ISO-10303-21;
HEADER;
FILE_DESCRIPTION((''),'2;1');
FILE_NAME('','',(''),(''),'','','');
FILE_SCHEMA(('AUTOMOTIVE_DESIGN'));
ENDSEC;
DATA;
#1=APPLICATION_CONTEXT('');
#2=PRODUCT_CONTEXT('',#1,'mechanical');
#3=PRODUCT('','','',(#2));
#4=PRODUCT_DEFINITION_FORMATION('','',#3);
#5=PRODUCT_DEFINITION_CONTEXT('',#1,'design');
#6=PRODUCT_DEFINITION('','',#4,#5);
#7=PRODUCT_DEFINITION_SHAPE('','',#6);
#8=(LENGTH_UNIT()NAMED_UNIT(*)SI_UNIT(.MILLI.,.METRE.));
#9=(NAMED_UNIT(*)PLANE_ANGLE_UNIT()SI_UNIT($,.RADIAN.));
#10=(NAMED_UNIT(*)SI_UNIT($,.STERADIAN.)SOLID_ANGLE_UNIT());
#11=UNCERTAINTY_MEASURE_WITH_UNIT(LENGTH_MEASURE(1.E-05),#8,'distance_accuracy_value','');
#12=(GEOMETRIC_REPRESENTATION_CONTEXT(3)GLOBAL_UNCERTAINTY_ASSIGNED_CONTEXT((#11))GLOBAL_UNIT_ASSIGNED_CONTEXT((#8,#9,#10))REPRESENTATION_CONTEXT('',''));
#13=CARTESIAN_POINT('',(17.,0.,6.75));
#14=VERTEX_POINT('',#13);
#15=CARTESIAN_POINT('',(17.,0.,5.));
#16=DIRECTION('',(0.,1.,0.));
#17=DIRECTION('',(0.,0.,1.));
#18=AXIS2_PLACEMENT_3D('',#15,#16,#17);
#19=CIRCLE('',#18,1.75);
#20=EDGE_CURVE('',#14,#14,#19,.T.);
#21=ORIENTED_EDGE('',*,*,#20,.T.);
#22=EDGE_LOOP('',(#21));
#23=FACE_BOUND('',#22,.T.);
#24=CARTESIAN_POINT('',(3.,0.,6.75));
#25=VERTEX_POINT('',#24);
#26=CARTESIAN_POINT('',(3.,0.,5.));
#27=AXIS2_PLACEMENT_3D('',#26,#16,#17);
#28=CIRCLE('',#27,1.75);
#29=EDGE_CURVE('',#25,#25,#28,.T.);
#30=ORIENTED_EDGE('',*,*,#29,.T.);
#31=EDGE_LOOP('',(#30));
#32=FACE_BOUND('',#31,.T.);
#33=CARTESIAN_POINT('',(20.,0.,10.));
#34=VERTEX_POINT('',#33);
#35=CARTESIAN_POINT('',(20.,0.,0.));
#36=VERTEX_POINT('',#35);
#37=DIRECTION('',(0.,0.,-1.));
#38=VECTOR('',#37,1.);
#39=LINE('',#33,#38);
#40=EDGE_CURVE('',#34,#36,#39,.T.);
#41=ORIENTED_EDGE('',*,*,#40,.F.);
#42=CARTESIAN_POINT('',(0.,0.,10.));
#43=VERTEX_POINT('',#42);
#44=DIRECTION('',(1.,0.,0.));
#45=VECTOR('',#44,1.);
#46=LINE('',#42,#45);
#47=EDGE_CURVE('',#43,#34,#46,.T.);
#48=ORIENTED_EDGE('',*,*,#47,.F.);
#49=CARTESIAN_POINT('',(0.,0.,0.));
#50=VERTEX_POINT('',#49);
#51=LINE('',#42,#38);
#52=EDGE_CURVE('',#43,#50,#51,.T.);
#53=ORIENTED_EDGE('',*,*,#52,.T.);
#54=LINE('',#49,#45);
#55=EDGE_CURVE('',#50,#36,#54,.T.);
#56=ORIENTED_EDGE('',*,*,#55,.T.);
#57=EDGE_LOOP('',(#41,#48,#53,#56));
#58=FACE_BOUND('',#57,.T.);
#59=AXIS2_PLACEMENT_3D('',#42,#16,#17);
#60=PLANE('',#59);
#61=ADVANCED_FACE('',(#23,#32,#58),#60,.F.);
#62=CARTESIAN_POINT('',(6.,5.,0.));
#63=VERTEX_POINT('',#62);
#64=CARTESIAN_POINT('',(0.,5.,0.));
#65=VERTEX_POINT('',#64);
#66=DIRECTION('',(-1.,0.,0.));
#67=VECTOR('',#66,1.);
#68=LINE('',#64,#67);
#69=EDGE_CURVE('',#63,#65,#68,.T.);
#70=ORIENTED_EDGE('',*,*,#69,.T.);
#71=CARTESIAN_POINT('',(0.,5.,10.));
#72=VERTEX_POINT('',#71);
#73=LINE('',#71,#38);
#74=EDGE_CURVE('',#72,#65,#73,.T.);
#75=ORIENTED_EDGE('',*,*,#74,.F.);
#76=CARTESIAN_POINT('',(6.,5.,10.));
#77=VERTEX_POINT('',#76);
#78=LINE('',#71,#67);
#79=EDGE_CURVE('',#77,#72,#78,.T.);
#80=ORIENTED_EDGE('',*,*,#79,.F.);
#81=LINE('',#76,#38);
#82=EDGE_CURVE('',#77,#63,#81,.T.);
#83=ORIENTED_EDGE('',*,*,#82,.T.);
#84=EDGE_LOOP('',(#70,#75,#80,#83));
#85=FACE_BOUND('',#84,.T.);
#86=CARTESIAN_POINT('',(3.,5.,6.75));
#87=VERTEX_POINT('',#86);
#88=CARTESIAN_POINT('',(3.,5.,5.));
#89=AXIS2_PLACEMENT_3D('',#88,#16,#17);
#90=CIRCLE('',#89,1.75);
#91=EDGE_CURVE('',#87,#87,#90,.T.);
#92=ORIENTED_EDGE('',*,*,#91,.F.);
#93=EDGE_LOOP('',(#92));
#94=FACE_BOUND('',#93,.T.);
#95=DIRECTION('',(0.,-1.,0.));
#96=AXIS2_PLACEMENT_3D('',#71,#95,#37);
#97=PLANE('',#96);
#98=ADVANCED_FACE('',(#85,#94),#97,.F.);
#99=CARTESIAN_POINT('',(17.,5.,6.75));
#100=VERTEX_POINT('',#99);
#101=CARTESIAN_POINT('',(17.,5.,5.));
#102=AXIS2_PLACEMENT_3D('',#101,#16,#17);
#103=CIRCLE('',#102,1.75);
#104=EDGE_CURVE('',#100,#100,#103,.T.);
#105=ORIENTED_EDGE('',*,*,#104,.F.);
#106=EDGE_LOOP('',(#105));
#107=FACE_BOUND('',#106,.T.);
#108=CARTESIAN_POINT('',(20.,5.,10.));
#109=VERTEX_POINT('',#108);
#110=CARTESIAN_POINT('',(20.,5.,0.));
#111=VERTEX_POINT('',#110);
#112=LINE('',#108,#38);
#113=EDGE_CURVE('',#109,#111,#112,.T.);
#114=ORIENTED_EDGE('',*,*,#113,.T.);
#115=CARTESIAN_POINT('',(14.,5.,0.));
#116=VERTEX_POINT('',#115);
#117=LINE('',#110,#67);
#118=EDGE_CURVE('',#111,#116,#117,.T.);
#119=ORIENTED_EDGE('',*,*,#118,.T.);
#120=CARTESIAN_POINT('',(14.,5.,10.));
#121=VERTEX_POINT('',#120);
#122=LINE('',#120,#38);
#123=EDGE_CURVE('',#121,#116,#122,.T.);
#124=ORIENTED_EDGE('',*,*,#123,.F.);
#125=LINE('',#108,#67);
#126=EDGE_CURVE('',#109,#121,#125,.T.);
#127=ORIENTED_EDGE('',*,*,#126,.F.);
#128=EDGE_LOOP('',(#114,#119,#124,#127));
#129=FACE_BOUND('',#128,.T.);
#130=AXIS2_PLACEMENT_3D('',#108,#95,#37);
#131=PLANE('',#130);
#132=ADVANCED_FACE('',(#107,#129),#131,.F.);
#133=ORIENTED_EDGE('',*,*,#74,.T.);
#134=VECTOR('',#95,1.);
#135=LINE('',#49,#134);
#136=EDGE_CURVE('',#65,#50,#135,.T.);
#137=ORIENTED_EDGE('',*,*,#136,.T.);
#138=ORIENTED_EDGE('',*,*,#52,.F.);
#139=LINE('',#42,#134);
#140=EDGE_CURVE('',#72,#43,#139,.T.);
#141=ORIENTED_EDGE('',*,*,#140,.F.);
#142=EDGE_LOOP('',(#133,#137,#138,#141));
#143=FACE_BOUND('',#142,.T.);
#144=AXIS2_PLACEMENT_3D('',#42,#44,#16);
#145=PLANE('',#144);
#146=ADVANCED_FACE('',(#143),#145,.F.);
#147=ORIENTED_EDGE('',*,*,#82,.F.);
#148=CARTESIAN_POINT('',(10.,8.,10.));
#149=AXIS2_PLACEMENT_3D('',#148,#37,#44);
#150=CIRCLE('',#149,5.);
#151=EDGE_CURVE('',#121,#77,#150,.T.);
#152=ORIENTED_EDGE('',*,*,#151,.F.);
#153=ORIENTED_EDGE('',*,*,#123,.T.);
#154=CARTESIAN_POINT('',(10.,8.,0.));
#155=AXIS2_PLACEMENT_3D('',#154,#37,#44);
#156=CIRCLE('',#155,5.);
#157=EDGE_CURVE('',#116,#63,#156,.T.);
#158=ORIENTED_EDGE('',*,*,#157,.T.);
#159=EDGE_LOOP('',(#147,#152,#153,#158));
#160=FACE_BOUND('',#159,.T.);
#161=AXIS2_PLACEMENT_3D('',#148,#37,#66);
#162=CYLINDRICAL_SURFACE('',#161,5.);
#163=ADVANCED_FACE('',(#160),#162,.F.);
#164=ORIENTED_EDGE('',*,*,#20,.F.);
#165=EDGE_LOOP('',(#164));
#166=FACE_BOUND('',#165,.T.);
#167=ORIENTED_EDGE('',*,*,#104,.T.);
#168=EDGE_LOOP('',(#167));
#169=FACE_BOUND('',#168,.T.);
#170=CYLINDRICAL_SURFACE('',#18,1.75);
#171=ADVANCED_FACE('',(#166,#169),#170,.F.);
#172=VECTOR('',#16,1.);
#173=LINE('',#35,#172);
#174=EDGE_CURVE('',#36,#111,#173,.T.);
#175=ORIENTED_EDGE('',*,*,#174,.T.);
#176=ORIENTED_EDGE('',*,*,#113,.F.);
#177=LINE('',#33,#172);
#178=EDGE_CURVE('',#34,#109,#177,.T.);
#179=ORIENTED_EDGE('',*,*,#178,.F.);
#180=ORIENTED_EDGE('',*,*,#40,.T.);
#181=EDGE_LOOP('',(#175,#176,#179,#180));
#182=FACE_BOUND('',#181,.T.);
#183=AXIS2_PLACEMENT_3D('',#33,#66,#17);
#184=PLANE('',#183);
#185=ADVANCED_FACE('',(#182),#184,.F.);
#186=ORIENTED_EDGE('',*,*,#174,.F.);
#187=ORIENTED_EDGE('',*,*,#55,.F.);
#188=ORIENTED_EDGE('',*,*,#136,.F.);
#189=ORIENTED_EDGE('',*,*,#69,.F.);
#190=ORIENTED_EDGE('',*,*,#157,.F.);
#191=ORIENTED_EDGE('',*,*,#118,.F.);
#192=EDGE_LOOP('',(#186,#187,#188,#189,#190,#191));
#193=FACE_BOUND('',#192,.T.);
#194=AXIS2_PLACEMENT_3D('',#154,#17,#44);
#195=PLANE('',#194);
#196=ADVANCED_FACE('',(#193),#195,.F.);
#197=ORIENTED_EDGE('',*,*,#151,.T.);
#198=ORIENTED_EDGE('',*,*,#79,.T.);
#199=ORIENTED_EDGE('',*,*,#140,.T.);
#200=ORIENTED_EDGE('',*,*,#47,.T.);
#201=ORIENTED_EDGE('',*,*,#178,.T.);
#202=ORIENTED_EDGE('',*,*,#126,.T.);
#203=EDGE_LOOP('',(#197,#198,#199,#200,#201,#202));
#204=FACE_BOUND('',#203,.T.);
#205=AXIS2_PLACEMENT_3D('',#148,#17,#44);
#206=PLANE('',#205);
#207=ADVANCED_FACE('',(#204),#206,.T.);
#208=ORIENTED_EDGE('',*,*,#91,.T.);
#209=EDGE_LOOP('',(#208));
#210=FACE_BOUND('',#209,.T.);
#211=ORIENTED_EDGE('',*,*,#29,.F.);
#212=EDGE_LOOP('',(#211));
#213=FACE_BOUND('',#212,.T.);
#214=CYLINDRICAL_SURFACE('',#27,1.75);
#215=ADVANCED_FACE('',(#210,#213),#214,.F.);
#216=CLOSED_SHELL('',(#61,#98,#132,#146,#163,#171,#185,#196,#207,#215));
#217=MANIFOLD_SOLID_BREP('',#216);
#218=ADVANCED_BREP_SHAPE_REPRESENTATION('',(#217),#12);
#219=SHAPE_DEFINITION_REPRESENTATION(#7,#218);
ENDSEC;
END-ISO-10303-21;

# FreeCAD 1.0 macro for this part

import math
import FreeCAD as App
import Part
import Sketcher

doc = App.newDocument("Part")
params = doc.addObject("Spreadsheet::Sheet", "Params")
for row, (alias, value) in enumerate([
    ("sketch1_radius", "5 mm"),
    ("sketch1_width", "20 mm"),
    ("sketch1_width2", "6 mm"),
    ("sketch1_height", "5 mm"),
    ("pad1_length", "10 mm"),
    ("sketch2_diameter", "3.5 mm"),
], start=1):
    params.set(f"A{row}", alias)
    params.set(f"B{row}", "=" + value)
    params.setAlias(f"B{row}", alias)

body = doc.addObject("PartDesign::Body", "Body")

# Sketch on XY plane
sketch1 = body.newObject("Sketcher::SketchObject", "Sketch")
sketch1.AttachmentSupport = (doc.getObject("XY_Plane"), [""])
sketch1.MapMode = "FlatFace"
sketch1.addGeometry(Part.LineSegment(App.Vector(0, 0, 0), App.Vector(20, 0, 0)), False)
sketch1.addGeometry(Part.LineSegment(App.Vector(20, 0, 0), App.Vector(20, 5, 0)), False)
sketch1.addGeometry(Part.LineSegment(App.Vector(20, 5, 0), App.Vector(14, 5, 0)), False)
sketch1.addGeometry(Part.ArcOfCircle(Part.Circle(App.Vector(10, 8, 0), App.Vector(0, 0, 1), 5), math.radians(-143), math.radians(-37)), False)
sketch1.addGeometry(Part.LineSegment(App.Vector(6, 5, 0), App.Vector(0, 5, 0)), False)
sketch1.addGeometry(Part.LineSegment(App.Vector(0, 5, 0), App.Vector(0, 0, 0)), False)
sketch1.addConstraint(Sketcher.Constraint("Coincident", 0, 2, 1, 1))
sketch1.addConstraint(Sketcher.Constraint("Coincident", 1, 2, 2, 1))
sketch1.addConstraint(Sketcher.Constraint("Coincident", 2, 2, 3, 2))
sketch1.addConstraint(Sketcher.Constraint("Coincident", 3, 1, 4, 1))
sketch1.addConstraint(Sketcher.Constraint("Coincident", 4, 2, 5, 1))
sketch1.addConstraint(Sketcher.Constraint("Coincident", 5, 2, 0, 1))
sketch1.addConstraint(Sketcher.Constraint("Horizontal", 0))
sketch1.addConstraint(Sketcher.Constraint("Vertical", 1))
sketch1.addConstraint(Sketcher.Constraint("Horizontal", 2))
sketch1.addConstraint(Sketcher.Constraint("Horizontal", 4))
sketch1.addConstraint(Sketcher.Constraint("Vertical", 5))
sketch1.addConstraint(Sketcher.Constraint("Coincident", 5, 2, -1, 1))
sketch1.addConstraint(Sketcher.Constraint("Horizontal", 2, 2, 3, 1))
sketch1.addConstraint(Sketcher.Constraint("Equal", 2, 4))
sketch1.addConstraint(Sketcher.Constraint("Radius", 3, 5.0))
sketch1.addConstraint(Sketcher.Constraint("DistanceX", 0, 1, 0, 2, 20.0))
sketch1.addConstraint(Sketcher.Constraint("DistanceX", 2, 2, 2, 1, 6.0))
sketch1.addConstraint(Sketcher.Constraint("DistanceY", 1, 1, 1, 2, 5.0))
sketch1.setExpression("Constraints[14]", "Params.sketch1_radius")
sketch1.setExpression("Constraints[15]", "Params.sketch1_width")
sketch1.setExpression("Constraints[16]", "Params.sketch1_width2")
sketch1.setExpression("Constraints[17]", "Params.sketch1_height")
pad1 = body.newObject("PartDesign::Pad", "Pad")
pad1.Profile = sketch1
pad1.setExpression("Length", "Params.pad1_length")

# Sketch on XZ plane
sketch2 = body.newObject("Sketcher::SketchObject", "Sketch001")
sketch2.AttachmentSupport = (doc.getObject("XZ_Plane"), [""])
sketch2.MapMode = "FlatFace"
sketch2.AttachmentOffset = App.Placement(App.Vector(0, 0, -5), App.Rotation())
sketch2.addGeometry(Part.Circle(App.Vector(3, 5, 0), App.Vector(0, 0, 1), 1.8), False)
sketch2.addGeometry(Part.Circle(App.Vector(17, 5, 0), App.Vector(0, 0, 1), 1.8), False)
sketch2.addConstraint(Sketcher.Constraint("Equal", 0, 1))
sketch2.addConstraint(Sketcher.Constraint("Horizontal", 0, 3, 1, 3))
sketch2.addConstraint(Sketcher.Constraint("Diameter", 0, 3.5))
sketch2.addConstraint(Sketcher.Constraint("DistanceX", -1, 1, 0, 3, 3.0))
sketch2.addConstraint(Sketcher.Constraint("DistanceY", -1, 1, 0, 3, 5.0))
sketch2.addConstraint(Sketcher.Constraint("DistanceX", -1, 1, 1, 3, 17.0))
sketch2.setExpression("Constraints[2]", "Params.sketch2_diameter")
pocket1 = body.newObject("PartDesign::Pocket", "Pocket")
pocket1.Profile = sketch2
pocket1.Type = "ThroughAll"
pocket1.Reversed = True

doc.recompute()
